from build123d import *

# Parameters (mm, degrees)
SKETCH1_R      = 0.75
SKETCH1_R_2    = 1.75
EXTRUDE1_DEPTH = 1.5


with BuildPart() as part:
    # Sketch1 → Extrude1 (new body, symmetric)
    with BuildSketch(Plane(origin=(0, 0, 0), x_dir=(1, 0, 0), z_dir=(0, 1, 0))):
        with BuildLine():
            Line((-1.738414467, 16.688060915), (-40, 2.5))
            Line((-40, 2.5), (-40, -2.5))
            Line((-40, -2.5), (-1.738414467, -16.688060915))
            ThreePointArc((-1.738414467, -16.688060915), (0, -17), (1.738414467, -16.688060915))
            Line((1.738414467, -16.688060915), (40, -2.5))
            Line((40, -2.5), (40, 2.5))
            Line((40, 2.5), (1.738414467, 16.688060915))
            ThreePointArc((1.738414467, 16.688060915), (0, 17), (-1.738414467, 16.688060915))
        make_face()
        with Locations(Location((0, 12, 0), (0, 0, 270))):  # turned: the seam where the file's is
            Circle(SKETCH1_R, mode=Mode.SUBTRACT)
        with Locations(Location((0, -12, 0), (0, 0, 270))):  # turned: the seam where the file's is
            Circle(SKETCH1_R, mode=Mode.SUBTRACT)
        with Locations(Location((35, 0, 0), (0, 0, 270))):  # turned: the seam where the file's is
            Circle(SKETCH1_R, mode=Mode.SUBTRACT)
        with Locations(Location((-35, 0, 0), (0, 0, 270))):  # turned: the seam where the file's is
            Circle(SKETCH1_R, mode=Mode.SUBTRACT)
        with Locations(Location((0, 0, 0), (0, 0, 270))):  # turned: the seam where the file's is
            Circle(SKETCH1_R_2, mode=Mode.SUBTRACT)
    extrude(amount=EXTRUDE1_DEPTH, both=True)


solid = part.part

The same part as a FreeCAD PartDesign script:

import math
import FreeCAD as App
import Part
import Sketcher
from FreeCAD import Vector

doc = App.newDocument("Part")
params = doc.addObject("Spreadsheet::Sheet", "Params")
for row, (alias, value) in enumerate([
    ("sketch1_radius", "5 mm"),
    ("sketch1_diameter", "1.5 mm"),
    ("sketch1_diameter2", "3.5 mm"),
    ("sketch1_height", "5 mm"),
    ("pad1_length", "3 mm"),
], start=1):
    params.set(f"A{row}", alias)
    params.set(f"B{row}", "=" + value)
    params.setAlias(f"B{row}", alias)

body = doc.addObject("PartDesign::Body", "Body")

# Sketch on XZ plane
sketch1 = body.newObject("Sketcher::SketchObject", "Sketch")
sketch1.AttachmentSupport = (doc.getObject("XZ_Plane"), [""])
sketch1.MapMode = "FlatFace"
sketch1.addGeometry(Part.LineSegment(Vector(-1.7, -16.7, 0), Vector(-40, -2.5, 0)), False)
sketch1.addGeometry(Part.LineSegment(Vector(-40, -2.5, 0), Vector(-40, 2.5, 0)), False)
sketch1.addGeometry(Part.LineSegment(Vector(-40, 2.5, 0), Vector(-1.7, 16.7, 0)), False)
sketch1.addGeometry(Part.ArcOfCircle(Part.Circle(Vector(0, 12, 0), Vector(0, 0, 1), 5), math.radians(70), math.radians(110)), False)
sketch1.addGeometry(Part.LineSegment(Vector(1.7, 16.7, 0), Vector(40, 2.5, 0)), False)
sketch1.addGeometry(Part.LineSegment(Vector(40, 2.5, 0), Vector(40, -2.5, 0)), False)
sketch1.addGeometry(Part.LineSegment(Vector(40, -2.5, 0), Vector(1.7, -16.7, 0)), False)
sketch1.addGeometry(Part.ArcOfCircle(Part.Circle(Vector(0, -12, 0), Vector(0, 0, 1), 5), math.radians(-110), math.radians(-70)), False)
sketch1.addGeometry(Part.Circle(Vector(0, 12, 0), Vector(0, 0, 1), 0.8), False)
sketch1.addGeometry(Part.Circle(Vector(-35, 0, 0), Vector(0, 0, 1), 0.8), False)
sketch1.addGeometry(Part.Circle(Vector(0, 0, 0), Vector(0, 0, 1), 1.8), False)
sketch1.addGeometry(Part.Circle(Vector(35, 0, 0), Vector(0, 0, 1), 0.8), False)
sketch1.addGeometry(Part.Circle(Vector(0, -12, 0), Vector(0, 0, 1), 0.8), False)
sketch1.addConstraint(Sketcher.Constraint("Coincident", 0, 2, 1, 1))
sketch1.addConstraint(Sketcher.Constraint("Coincident", 1, 2, 2, 1))
sketch1.addConstraint(Sketcher.Constraint("Tangent", 2, 2, 3, 2))
sketch1.addConstraint(Sketcher.Constraint("Tangent", 3, 1, 4, 1))
sketch1.addConstraint(Sketcher.Constraint("Coincident", 4, 2, 5, 1))
sketch1.addConstraint(Sketcher.Constraint("Coincident", 5, 2, 6, 1))
sketch1.addConstraint(Sketcher.Constraint("Tangent", 6, 2, 7, 2))
sketch1.addConstraint(Sketcher.Constraint("Tangent", 7, 1, 0, 1))
sketch1.addConstraint(Sketcher.Constraint("Vertical", 1))
sketch1.addConstraint(Sketcher.Constraint("Vertical", 5))
sketch1.addConstraint(Sketcher.Constraint("Coincident", 10, 3, -1, 1))
sketch1.addConstraint(Sketcher.Constraint("Coincident", 8, 3, 3, 3))
sketch1.addConstraint(Sketcher.Constraint("Coincident", 12, 3, 7, 3))
sketch1.addConstraint(Sketcher.Constraint("Equal", 3, 7))
sketch1.addConstraint(Sketcher.Constraint("Equal", 8, 9))
sketch1.addConstraint(Sketcher.Constraint("Equal", 9, 11))
sketch1.addConstraint(Sketcher.Constraint("Equal", 11, 12))
sketch1.addConstraint(Sketcher.Constraint("Symmetric", 3, 3, 7, 3, -1, 1))
sketch1.addConstraint(Sketcher.Constraint("Symmetric", 9, 3, 11, 3, -1, 1))
sketch1.addConstraint(Sketcher.Constraint("Symmetric", 0, 2, 4, 2, -1, 1))
sketch1.addConstraint(Sketcher.Constraint("Symmetric", 2, 2, 3, 1, -2))
sketch1.addConstraint(Sketcher.Constraint("PointOnObject", 9, 3, -1))
sketch1.addConstraint(Sketcher.Constraint("Parallel", 2, 6))
sketch1.addConstraint(Sketcher.Constraint("Radius", 3, 5.0))
sketch1.addConstraint(Sketcher.Constraint("Diameter", 8, 1.5))
sketch1.addConstraint(Sketcher.Constraint("Diameter", 10, 3.5))
sketch1.addConstraint(Sketcher.Constraint("DistanceY", 1, 1, 1, 2, 5.0))
sketch1.addConstraint(Sketcher.Constraint("DistanceY", -1, 1, 3, 3, 12.0))
sketch1.addConstraint(Sketcher.Constraint("DistanceX", 9, 3, -1, 1, 35.0))
sketch1.addConstraint(Sketcher.Constraint("DistanceX", 0, 2, -1, 1, 40.0))
sketch1.setExpression("Constraints[23]", "Params.sketch1_radius")
sketch1.setExpression("Constraints[24]", "Params.sketch1_diameter")
sketch1.setExpression("Constraints[25]", "Params.sketch1_diameter2")
sketch1.setExpression("Constraints[26]", "Params.sketch1_height")
pad1 = body.newObject("PartDesign::Pad", "Pad")
pad1.Profile = sketch1
pad1.setExpression("Length", "Params.pad1_length")
pad1.Midplane = True

doc.recompute()
